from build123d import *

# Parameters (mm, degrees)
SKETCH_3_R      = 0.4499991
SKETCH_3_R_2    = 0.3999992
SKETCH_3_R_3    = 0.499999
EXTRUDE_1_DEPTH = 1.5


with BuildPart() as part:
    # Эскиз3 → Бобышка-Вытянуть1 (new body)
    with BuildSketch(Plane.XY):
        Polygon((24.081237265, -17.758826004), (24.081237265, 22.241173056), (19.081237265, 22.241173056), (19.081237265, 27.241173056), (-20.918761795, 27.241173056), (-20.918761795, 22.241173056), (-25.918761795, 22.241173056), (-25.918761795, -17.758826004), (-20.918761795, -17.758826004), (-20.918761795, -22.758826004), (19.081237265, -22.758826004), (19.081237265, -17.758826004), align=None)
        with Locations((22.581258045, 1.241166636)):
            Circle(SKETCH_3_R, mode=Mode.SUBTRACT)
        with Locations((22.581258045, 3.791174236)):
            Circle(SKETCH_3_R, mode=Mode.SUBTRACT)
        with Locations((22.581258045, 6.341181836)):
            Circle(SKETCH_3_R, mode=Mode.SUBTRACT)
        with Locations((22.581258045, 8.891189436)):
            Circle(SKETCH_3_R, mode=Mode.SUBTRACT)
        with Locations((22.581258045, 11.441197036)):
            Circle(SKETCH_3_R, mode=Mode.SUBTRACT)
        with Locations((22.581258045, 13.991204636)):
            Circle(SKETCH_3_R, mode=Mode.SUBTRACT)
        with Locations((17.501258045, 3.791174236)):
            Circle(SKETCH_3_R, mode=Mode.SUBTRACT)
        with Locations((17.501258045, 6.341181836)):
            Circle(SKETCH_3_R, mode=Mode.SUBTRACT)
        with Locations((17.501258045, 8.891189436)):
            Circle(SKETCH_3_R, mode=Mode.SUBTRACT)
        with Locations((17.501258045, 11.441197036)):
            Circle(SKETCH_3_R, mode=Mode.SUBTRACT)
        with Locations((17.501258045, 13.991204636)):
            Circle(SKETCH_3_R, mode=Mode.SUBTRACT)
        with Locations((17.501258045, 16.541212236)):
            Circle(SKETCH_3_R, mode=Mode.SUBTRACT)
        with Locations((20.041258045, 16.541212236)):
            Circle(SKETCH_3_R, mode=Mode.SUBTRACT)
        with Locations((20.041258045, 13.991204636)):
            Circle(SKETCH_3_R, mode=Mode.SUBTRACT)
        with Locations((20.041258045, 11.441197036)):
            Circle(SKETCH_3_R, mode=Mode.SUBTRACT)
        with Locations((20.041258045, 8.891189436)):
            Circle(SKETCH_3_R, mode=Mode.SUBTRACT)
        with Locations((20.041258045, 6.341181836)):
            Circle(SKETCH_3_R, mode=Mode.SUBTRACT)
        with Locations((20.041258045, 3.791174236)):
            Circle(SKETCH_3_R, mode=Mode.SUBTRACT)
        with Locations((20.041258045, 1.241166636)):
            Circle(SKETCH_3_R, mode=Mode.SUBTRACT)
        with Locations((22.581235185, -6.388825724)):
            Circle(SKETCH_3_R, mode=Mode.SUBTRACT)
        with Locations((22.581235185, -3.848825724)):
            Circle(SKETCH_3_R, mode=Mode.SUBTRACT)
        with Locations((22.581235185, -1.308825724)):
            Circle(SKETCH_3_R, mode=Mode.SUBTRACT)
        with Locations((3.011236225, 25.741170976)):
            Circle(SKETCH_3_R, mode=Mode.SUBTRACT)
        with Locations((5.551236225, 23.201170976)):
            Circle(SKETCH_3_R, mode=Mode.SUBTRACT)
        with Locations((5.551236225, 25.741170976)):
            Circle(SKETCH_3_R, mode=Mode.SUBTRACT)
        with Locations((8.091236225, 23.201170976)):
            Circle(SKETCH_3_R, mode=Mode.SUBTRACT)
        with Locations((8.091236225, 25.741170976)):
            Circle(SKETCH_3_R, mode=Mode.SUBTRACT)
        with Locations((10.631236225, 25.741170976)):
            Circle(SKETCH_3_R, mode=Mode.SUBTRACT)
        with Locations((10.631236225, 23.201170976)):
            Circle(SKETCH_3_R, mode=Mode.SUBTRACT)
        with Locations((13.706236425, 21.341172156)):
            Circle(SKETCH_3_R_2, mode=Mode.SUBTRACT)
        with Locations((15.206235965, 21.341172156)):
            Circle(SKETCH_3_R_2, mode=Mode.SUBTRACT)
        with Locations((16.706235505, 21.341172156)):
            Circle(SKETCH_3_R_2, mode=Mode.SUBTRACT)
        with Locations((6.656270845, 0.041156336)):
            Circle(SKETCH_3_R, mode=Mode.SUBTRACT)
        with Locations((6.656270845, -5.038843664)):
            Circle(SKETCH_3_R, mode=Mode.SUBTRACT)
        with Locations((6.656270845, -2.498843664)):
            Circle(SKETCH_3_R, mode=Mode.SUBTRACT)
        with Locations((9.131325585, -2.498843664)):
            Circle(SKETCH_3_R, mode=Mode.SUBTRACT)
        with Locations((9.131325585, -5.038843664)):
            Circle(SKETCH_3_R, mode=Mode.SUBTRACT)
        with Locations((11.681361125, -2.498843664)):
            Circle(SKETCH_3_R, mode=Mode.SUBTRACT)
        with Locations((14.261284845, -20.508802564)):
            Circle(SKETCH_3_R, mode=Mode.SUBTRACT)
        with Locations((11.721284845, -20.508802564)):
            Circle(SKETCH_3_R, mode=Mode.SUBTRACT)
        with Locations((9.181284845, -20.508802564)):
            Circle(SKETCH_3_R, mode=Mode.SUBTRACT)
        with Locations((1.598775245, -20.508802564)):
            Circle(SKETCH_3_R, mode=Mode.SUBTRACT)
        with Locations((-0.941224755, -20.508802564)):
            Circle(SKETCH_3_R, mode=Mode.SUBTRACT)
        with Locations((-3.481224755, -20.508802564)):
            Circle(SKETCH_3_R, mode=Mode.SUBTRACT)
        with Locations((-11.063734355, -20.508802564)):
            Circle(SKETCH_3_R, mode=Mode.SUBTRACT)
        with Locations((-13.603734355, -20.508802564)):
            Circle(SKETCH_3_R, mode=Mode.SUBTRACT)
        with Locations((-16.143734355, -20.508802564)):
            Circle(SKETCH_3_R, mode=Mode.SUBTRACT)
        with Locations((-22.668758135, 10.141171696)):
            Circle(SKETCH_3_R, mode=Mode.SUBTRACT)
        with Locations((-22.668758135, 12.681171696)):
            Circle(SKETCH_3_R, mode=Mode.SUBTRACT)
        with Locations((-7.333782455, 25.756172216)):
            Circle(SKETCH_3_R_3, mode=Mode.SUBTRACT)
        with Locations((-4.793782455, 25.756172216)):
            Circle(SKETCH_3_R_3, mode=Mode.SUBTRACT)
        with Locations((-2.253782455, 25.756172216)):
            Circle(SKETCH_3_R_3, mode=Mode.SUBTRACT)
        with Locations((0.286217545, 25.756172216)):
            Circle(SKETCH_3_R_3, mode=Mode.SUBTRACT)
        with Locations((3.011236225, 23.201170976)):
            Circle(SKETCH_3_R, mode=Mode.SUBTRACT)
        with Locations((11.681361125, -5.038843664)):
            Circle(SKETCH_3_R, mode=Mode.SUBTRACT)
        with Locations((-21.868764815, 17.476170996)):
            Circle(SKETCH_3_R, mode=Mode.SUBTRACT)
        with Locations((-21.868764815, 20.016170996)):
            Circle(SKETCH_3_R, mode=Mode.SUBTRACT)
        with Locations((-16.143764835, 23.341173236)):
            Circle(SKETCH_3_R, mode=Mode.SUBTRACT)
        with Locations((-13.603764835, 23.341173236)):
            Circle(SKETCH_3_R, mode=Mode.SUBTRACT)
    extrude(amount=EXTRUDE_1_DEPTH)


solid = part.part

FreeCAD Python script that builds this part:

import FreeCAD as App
import Part
import Sketcher
Q = App.Units.Quantity


def add_polygon(sketch, points):
    """Adds a closed chain of lines whose ends are joined by coincident constraints."""
    first, n = sketch.GeometryCount, len(points)
    for a, b in zip(points, points[1:] + points[:1]):
        sketch.addGeometry(Part.LineSegment(App.Vector(*a, 0), App.Vector(*b, 0)), False)
    for i in range(n):
        sketch.addConstraint(Sketcher.Constraint("Coincident", first + i, 2, first + (i + 1) % n, 1))

doc = App.newDocument("Part")
body = doc.addObject("PartDesign::Body", "Body")

# Sketch on XY plane
sketch1 = doc.addObject("Sketcher::SketchObject", "Sketch")
body.addObject(sketch1)
sketch1.AttachmentSupport = (doc.XY_Plane, [""])
sketch1.MapMode = "FlatFace"
add_polygon(sketch1, [(24.08, -17.76), (24.08, 22.24), (19.08, 22.24), (19.08, 27.24), (-20.92, 27.24), (-20.92, 22.24), (-25.92, 22.24), (-25.92, -17.76), (-20.92, -17.76), (-20.92, -22.76), (19.08, -22.76), (19.08, -17.76)])  # lines 0-11
sketch1.addGeometry(Part.Circle(App.Vector(-16.14, -20.51, 0), App.Vector(0, 0, 1), 0.45), False)  # 12
sketch1.addGeometry(Part.Circle(App.Vector(-13.6, -20.51, 0), App.Vector(0, 0, 1), 0.45), False)  # 13
sketch1.addGeometry(Part.Circle(App.Vector(-11.06, -20.51, 0), App.Vector(0, 0, 1), 0.45), False)  # 14
sketch1.addGeometry(Part.Circle(App.Vector(-3.48, -20.51, 0), App.Vector(0, 0, 1), 0.45), False)  # 15
sketch1.addGeometry(Part.Circle(App.Vector(-0.94, -20.51, 0), App.Vector(0, 0, 1), 0.45), False)  # 16
sketch1.addGeometry(Part.Circle(App.Vector(1.6, -20.51, 0), App.Vector(0, 0, 1), 0.45), False)  # 17
sketch1.addGeometry(Part.Circle(App.Vector(9.18, -20.51, 0), App.Vector(0, 0, 1), 0.45), False)  # 18
sketch1.addGeometry(Part.Circle(App.Vector(11.72, -20.51, 0), App.Vector(0, 0, 1), 0.45), False)  # 19
sketch1.addGeometry(Part.Circle(App.Vector(14.26, -20.51, 0), App.Vector(0, 0, 1), 0.45), False)  # 20
sketch1.addGeometry(Part.Circle(App.Vector(6.66, -5.04, 0), App.Vector(0, 0, 1), 0.45), False)  # 21
sketch1.addGeometry(Part.Circle(App.Vector(9.13, -5.04, 0), App.Vector(0, 0, 1), 0.45), False)  # 22
sketch1.addGeometry(Part.Circle(App.Vector(6.66, -2.5, 0), App.Vector(0, 0, 1), 0.45), False)  # 23
sketch1.addGeometry(Part.Circle(App.Vector(9.13, -2.5, 0), App.Vector(0, 0, 1), 0.45), False)  # 24
sketch1.addGeometry(Part.Circle(App.Vector(6.66, 0.04, 0), App.Vector(0, 0, 1), 0.45), False)  # 25
sketch1.addGeometry(Part.Circle(App.Vector(11.68, -5.04, 0), App.Vector(0, 0, 1), 0.45), False)  # 26
sketch1.addGeometry(Part.Circle(App.Vector(22.58, -6.39, 0), App.Vector(0, 0, 1), 0.45), False)  # 27
sketch1.addGeometry(Part.Circle(App.Vector(22.58, -3.85, 0), App.Vector(0, 0, 1), 0.45), False)  # 28
sketch1.addGeometry(Part.Circle(App.Vector(11.68, -2.5, 0), App.Vector(0, 0, 1), 0.45), False)  # 29
sketch1.addGeometry(Part.Circle(App.Vector(22.58, -1.31, 0), App.Vector(0, 0, 1), 0.45), False)  # 30
sketch1.addGeometry(Part.Circle(App.Vector(20.04, 1.24, 0), App.Vector(0, 0, 1), 0.45), False)  # 31
sketch1.addGeometry(Part.Circle(App.Vector(22.58, 1.24, 0), App.Vector(0, 0, 1), 0.45), False)  # 32
sketch1.addGeometry(Part.Circle(App.Vector(-22.67, 10.14, 0), App.Vector(0, 0, 1), 0.45), False)  # 33
sketch1.addGeometry(Part.Circle(App.Vector(-22.67, 12.68, 0), App.Vector(0, 0, 1), 0.45), False)  # 34
sketch1.addGeometry(Part.Circle(App.Vector(-21.87, 17.48, 0), App.Vector(0, 0, 1), 0.45), False)  # 35
sketch1.addGeometry(Part.Circle(App.Vector(-21.87, 20.02, 0), App.Vector(0, 0, 1), 0.45), False)  # 36
sketch1.addGeometry(Part.Circle(App.Vector(-16.14, 23.34, 0), App.Vector(0, 0, 1), 0.45), False)  # 37
sketch1.addGeometry(Part.Circle(App.Vector(-13.6, 23.34, 0), App.Vector(0, 0, 1), 0.45), False)  # 38
sketch1.addGeometry(Part.Circle(App.Vector(-7.33, 25.76, 0), App.Vector(0, 0, 1), 0.5), False)  # 39
sketch1.addGeometry(Part.Circle(App.Vector(-4.79, 25.76, 0), App.Vector(0, 0, 1), 0.5), False)  # 40
sketch1.addGeometry(Part.Circle(App.Vector(-2.25, 25.76, 0), App.Vector(0, 0, 1), 0.5), False)  # 41
sketch1.addGeometry(Part.Circle(App.Vector(17.5, 3.79, 0), App.Vector(0, 0, 1), 0.45), False)  # 42
sketch1.addGeometry(Part.Circle(App.Vector(20.04, 3.79, 0), App.Vector(0, 0, 1), 0.45), False)  # 43
sketch1.addGeometry(Part.Circle(App.Vector(22.58, 3.79, 0), App.Vector(0, 0, 1), 0.45), False)  # 44
sketch1.addGeometry(Part.Circle(App.Vector(17.5, 6.34, 0), App.Vector(0, 0, 1), 0.45), False)  # 45
sketch1.addGeometry(Part.Circle(App.Vector(20.04, 6.34, 0), App.Vector(0, 0, 1), 0.45), False)  # 46
sketch1.addGeometry(Part.Circle(App.Vector(22.58, 6.34, 0), App.Vector(0, 0, 1), 0.45), False)  # 47
sketch1.addGeometry(Part.Circle(App.Vector(17.5, 8.89, 0), App.Vector(0, 0, 1), 0.45), False)  # 48
sketch1.addGeometry(Part.Circle(App.Vector(20.04, 8.89, 0), App.Vector(0, 0, 1), 0.45), False)  # 49
sketch1.addGeometry(Part.Circle(App.Vector(17.5, 11.44, 0), App.Vector(0, 0, 1), 0.45), False)  # 50
sketch1.addGeometry(Part.Circle(App.Vector(20.04, 11.44, 0), App.Vector(0, 0, 1), 0.45), False)  # 51
sketch1.addGeometry(Part.Circle(App.Vector(22.58, 8.89, 0), App.Vector(0, 0, 1), 0.45), False)  # 52
sketch1.addGeometry(Part.Circle(App.Vector(22.58, 11.44, 0), App.Vector(0, 0, 1), 0.45), False)  # 53
sketch1.addGeometry(Part.Circle(App.Vector(17.5, 13.99, 0), App.Vector(0, 0, 1), 0.45), False)  # 54
sketch1.addGeometry(Part.Circle(App.Vector(20.04, 13.99, 0), App.Vector(0, 0, 1), 0.45), False)  # 55
sketch1.addGeometry(Part.Circle(App.Vector(22.58, 13.99, 0), App.Vector(0, 0, 1), 0.45), False)  # 56
sketch1.addGeometry(Part.Circle(App.Vector(3.01, 23.2, 0), App.Vector(0, 0, 1), 0.45), False)  # 57
sketch1.addGeometry(Part.Circle(App.Vector(5.55, 23.2, 0), App.Vector(0, 0, 1), 0.45), False)  # 58
sketch1.addGeometry(Part.Circle(App.Vector(0.29, 25.76, 0), App.Vector(0, 0, 1), 0.5), False)  # 59
sketch1.addGeometry(Part.Circle(App.Vector(3.01, 25.74, 0), App.Vector(0, 0, 1), 0.45), False)  # 60
sketch1.addGeometry(Part.Circle(App.Vector(5.55, 25.74, 0), App.Vector(0, 0, 1), 0.45), False)  # 61
sketch1.addGeometry(Part.Circle(App.Vector(8.09, 23.2, 0), App.Vector(0, 0, 1), 0.45), False)  # 62
sketch1.addGeometry(Part.Circle(App.Vector(10.63, 23.2, 0), App.Vector(0, 0, 1), 0.45), False)  # 63
sketch1.addGeometry(Part.Circle(App.Vector(8.09, 25.74, 0), App.Vector(0, 0, 1), 0.45), False)  # 64
sketch1.addGeometry(Part.Circle(App.Vector(10.63, 25.74, 0), App.Vector(0, 0, 1), 0.45), False)  # 65
sketch1.addGeometry(Part.Circle(App.Vector(17.5, 16.54, 0), App.Vector(0, 0, 1), 0.45), False)  # 66
sketch1.addGeometry(Part.Circle(App.Vector(20.04, 16.54, 0), App.Vector(0, 0, 1), 0.45), False)  # 67
sketch1.addGeometry(Part.Circle(App.Vector(13.71, 21.34, 0), App.Vector(0, 0, 1), 0.4), False)  # 68
sketch1.addGeometry(Part.Circle(App.Vector(15.21, 21.34, 0), App.Vector(0, 0, 1), 0.4), False)  # 69
sketch1.addGeometry(Part.Circle(App.Vector(16.71, 21.34, 0), App.Vector(0, 0, 1), 0.4), False)  # 70
sketch1.addConstraint([
    Sketcher.Constraint("Vertical", 0),
    Sketcher.Constraint("Horizontal", 1),
    Sketcher.Constraint("Vertical", 2),
    Sketcher.Constraint("Horizontal", 3),
    Sketcher.Constraint("Vertical", 4),
    Sketcher.Constraint("Horizontal", 5),
    Sketcher.Constraint("Vertical", 6),
    Sketcher.Constraint("Horizontal", 7),
    Sketcher.Constraint("Vertical", 8),
    Sketcher.Constraint("Horizontal", 9),
    Sketcher.Constraint("Vertical", 10),
    Sketcher.Constraint("Horizontal", 11),
    Sketcher.Constraint("Equal", 12, 13),
    Sketcher.Constraint("Equal", 13, 14),
    Sketcher.Constraint("Equal", 14, 15),
    Sketcher.Constraint("Equal", 15, 16),
    Sketcher.Constraint("Equal", 16, 17),
    Sketcher.Constraint("Equal", 17, 18),
    Sketcher.Constraint("Equal", 18, 19),
    Sketcher.Constraint("Equal", 19, 20),
    Sketcher.Constraint("Equal", 20, 21),
    Sketcher.Constraint("Equal", 21, 22),
    Sketcher.Constraint("Equal", 22, 23),
    Sketcher.Constraint("Equal", 23, 24),
    Sketcher.Constraint("Equal", 24, 25),
    Sketcher.Constraint("Equal", 25, 26),
    Sketcher.Constraint("Equal", 26, 27),
    Sketcher.Constraint("Equal", 27, 28),
    Sketcher.Constraint("Equal", 28, 29),
    Sketcher.Constraint("Equal", 29, 30),
    Sketcher.Constraint("Equal", 30, 31),
    Sketcher.Constraint("Equal", 31, 32),
    Sketcher.Constraint("Equal", 32, 33),
    Sketcher.Constraint("Equal", 33, 34),
    Sketcher.Constraint("Equal", 34, 35),
    Sketcher.Constraint("Equal", 35, 36),
    Sketcher.Constraint("Equal", 36, 37),
    Sketcher.Constraint("Equal", 37, 38),
    Sketcher.Constraint("Equal", 39, 40),
    Sketcher.Constraint("Equal", 40, 41),
    Sketcher.Constraint("Equal", 38, 42),
    Sketcher.Constraint("Equal", 42, 43),
    Sketcher.Constraint("Equal", 43, 44),
    Sketcher.Constraint("Equal", 44, 45),
    Sketcher.Constraint("Equal", 45, 46),
    Sketcher.Constraint("Equal", 46, 47),
    Sketcher.Constraint("Equal", 47, 48),
    Sketcher.Constraint("Equal", 48, 49),
    Sketcher.Constraint("Equal", 49, 50),
    Sketcher.Constraint("Equal", 50, 51),
    Sketcher.Constraint("Equal", 51, 52),
    Sketcher.Constraint("Equal", 52, 53),
    Sketcher.Constraint("Equal", 53, 54),
    Sketcher.Constraint("Equal", 54, 55),
    Sketcher.Constraint("Equal", 55, 56),
    Sketcher.Constraint("Equal", 56, 57),
    Sketcher.Constraint("Equal", 57, 58),
    Sketcher.Constraint("Equal", 41, 59),
    Sketcher.Constraint("Equal", 58, 60),
    Sketcher.Constraint("Equal", 60, 61),
    Sketcher.Constraint("Equal", 61, 62),
    Sketcher.Constraint("Equal", 62, 63),
    Sketcher.Constraint("Equal", 63, 64),
    Sketcher.Constraint("Equal", 64, 65),
    Sketcher.Constraint("Equal", 65, 66),
    Sketcher.Constraint("Equal", 66, 67),
    Sketcher.Constraint("Equal", 68, 69),
    Sketcher.Constraint("Equal", 69, 70),
    Sketcher.Constraint("Horizontal", 12, 3, 13, 3),
    Sketcher.Constraint("Horizontal", 13, 3, 14, 3),
    Sketcher.Constraint("Horizontal", 14, 3, 15, 3),
    Sketcher.Constraint("Horizontal", 15, 3, 16, 3),
    Sketcher.Constraint("Horizontal", 16, 3, 17, 3),
    Sketcher.Constraint("Horizontal", 17, 3, 18, 3),
    Sketcher.Constraint("Horizontal", 18, 3, 19, 3),
    Sketcher.Constraint("Horizontal", 19, 3, 20, 3),
    Sketcher.Constraint("Horizontal", 21, 3, 22, 3),
    Sketcher.Constraint("Horizontal", 23, 3, 24, 3),
    Sketcher.Constraint("Horizontal", 22, 3, 26, 3),
    Sketcher.Constraint("Horizontal", 24, 3, 29, 3),
    Sketcher.Constraint("Horizontal", 31, 3, 32, 3),
    Sketcher.Constraint("Horizontal", 37, 3, 38, 3),
    Sketcher.Constraint("Horizontal", 39, 3, 40, 3),
    Sketcher.Constraint("Horizontal", 40, 3, 41, 3),
    Sketcher.Constraint("Horizontal", 42, 3, 43, 3),
    Sketcher.Constraint("Horizontal", 43, 3, 44, 3),
    Sketcher.Constraint("Horizontal", 45, 3, 46, 3),
    Sketcher.Constraint("Horizontal", 46, 3, 47, 3),
    Sketcher.Constraint("Horizontal", 48, 3, 49, 3),
    Sketcher.Constraint("Horizontal", 50, 3, 51, 3),
    Sketcher.Constraint("Horizontal", 49, 3, 52, 3),
    Sketcher.Constraint("Horizontal", 51, 3, 53, 3),
    Sketcher.Constraint("Horizontal", 54, 3, 55, 3),
    Sketcher.Constraint("Horizontal", 55, 3, 56, 3),
    Sketcher.Constraint("Horizontal", 57, 3, 58, 3),
    Sketcher.Constraint("Horizontal", 41, 3, 59, 3),
    Sketcher.Constraint("Horizontal", 60, 3, 61, 3),
    Sketcher.Constraint("Horizontal", 58, 3, 62, 3),
    Sketcher.Constraint("Horizontal", 62, 3, 63, 3),
    Sketcher.Constraint("Horizontal", 61, 3, 64, 3),
    Sketcher.Constraint("Horizontal", 64, 3, 65, 3),
    Sketcher.Constraint("Horizontal", 66, 3, 67, 3),
    Sketcher.Constraint("Horizontal", 68, 3, 69, 3),
    Sketcher.Constraint("Horizontal", 69, 3, 70, 3),
    Sketcher.Constraint("Horizontal", 1, 2, 4, 2),
    Sketcher.Constraint("Horizontal", 7, 2, 10, 2),
    Sketcher.Constraint("Vertical", 21, 3, 23, 3),
    Sketcher.Constraint("Vertical", 22, 3, 24, 3),
    Sketcher.Constraint("Vertical", 23, 3, 25, 3),
    Sketcher.Constraint("Vertical", 27, 3, 28, 3),
    Sketcher.Constraint("Vertical", 26, 3, 29, 3),
    Sketcher.Constraint("Vertical", 28, 3, 30, 3),
    Sketcher.Constraint("Vertical", 33, 3, 34, 3),
    Sketcher.Constraint("Vertical", 35, 3, 36, 3),
    Sketcher.Constraint("Vertical", 31, 3, 43, 3),
    Sketcher.Constraint("Vertical", 32, 3, 44, 3),
    Sketcher.Constraint("Vertical", 42, 3, 45, 3),
    Sketcher.Constraint("Vertical", 43, 3, 46, 3),
    Sketcher.Constraint("Vertical", 44, 3, 47, 3),
    Sketcher.Constraint("Vertical", 45, 3, 48, 3),
    Sketcher.Constraint("Vertical", 46, 3, 49, 3),
    Sketcher.Constraint("Vertical", 48, 3, 50, 3),
    Sketcher.Constraint("Vertical", 49, 3, 51, 3),
    Sketcher.Constraint("Vertical", 47, 3, 52, 3),
    Sketcher.Constraint("Vertical", 52, 3, 53, 3),
    Sketcher.Constraint("Vertical", 50, 3, 54, 3),
    Sketcher.Constraint("Vertical", 51, 3, 55, 3),
    Sketcher.Constraint("Vertical", 53, 3, 56, 3),
    Sketcher.Constraint("Vertical", 57, 3, 60, 3),
    Sketcher.Constraint("Vertical", 58, 3, 61, 3),
    Sketcher.Constraint("Vertical", 62, 3, 64, 3),
    Sketcher.Constraint("Vertical", 63, 3, 65, 3),
    Sketcher.Constraint("Vertical", 54, 3, 66, 3),
    Sketcher.Constraint("Vertical", 55, 3, 67, 3),
    Sketcher.Constraint("Vertical", 4, 2, 7, 2),
    Sketcher.Constraint("Vertical", 2, 2, 9, 2),
    Sketcher.Constraint("Equal", 1, 5),
    Sketcher.Constraint("Equal", 9, 0),
    Sketcher.Constraint("Equal", 11, 2),
    Sketcher.Constraint("Equal", 4, 8),
    Sketcher.Constraint("Diameter", 39, Q("0.999998 mm")),
    Sketcher.Constraint("Diameter", 12, Q("0.899998 mm")),
    Sketcher.Constraint("Diameter", 68, Q("0.799998 mm")),
    Sketcher.Constraint("DistanceX", 1, 2, 1, 1, Q("5 mm")),
    Sketcher.Constraint("DistanceX", 3, 2, 3, 1, Q("39.999999 mm")),
    Sketcher.Constraint("DistanceX", -1, 1, 21, 3, Q("6.656271 mm")),
    Sketcher.Constraint("DistanceX", -1, 1, 26, 3, Q("11.681361 mm")),
    Sketcher.Constraint("DistanceX", -1, 1, 31, 3, Q("20.041258 mm")),
    Sketcher.Constraint("DistanceX", -1, 1, 32, 3, Q("22.581258 mm")),
    Sketcher.Constraint("DistanceX", 33, 3, -1, 1, Q("22.668758 mm")),
    Sketcher.Constraint("DistanceY", -1, 1, 33, 3, Q("10.141172 mm")),
    Sketcher.Constraint("DistanceY", -1, 1, 34, 3, Q("12.681172 mm")),
    Sketcher.Constraint("DistanceY", -1, 1, 35, 3, Q("17.476171 mm")),
    Sketcher.Constraint("DistanceY", -1, 1, 36, 3, Q("20.016171 mm")),
    Sketcher.Constraint("DistanceX", -1, 1, 42, 3, Q("17.501258 mm")),
    Sketcher.Constraint("DistanceY", -1, 1, 45, 3, Q("6.341182 mm")),
    Sketcher.Constraint("DistanceY", -1, 1, 48, 3, Q("8.891189 mm")),
    Sketcher.Constraint("DistanceY", -1, 1, 57, 3, Q("23.201171 mm")),
    Sketcher.Constraint("DistanceY", -1, 1, 60, 3, Q("25.741171 mm")),
    Sketcher.Constraint("DistanceX", 3, 2, -1, 1, Q("20.918762 mm")),
    Sketcher.Constraint("DistanceX", 12, 3, -1, 1, Q("16.143734 mm")),
    Sketcher.Constraint("DistanceY", 12, 3, -1, 1, Q("20.508803 mm")),
    Sketcher.Constraint("DistanceX", 13, 3, -1, 1, Q("13.603734 mm")),
    Sketcher.Constraint("DistanceX", 14, 3, -1, 1, Q("11.063734 mm")),
    Sketcher.Constraint("DistanceX", 15, 3, -1, 1, Q("3.481225 mm")),
    Sketcher.Constraint("DistanceX", 16, 3, -1, 1, Q("0.941225 mm")),
    Sketcher.Constraint("DistanceX", -1, 1, 17, 3, Q("1.598775 mm")),
    Sketcher.Constraint("DistanceX", -1, 1, 18, 3, Q("9.181285 mm")),
    Sketcher.Constraint("DistanceX", -1, 1, 19, 3, Q("11.721285 mm")),
    Sketcher.Constraint("DistanceX", -1, 1, 20, 3, Q("14.261285 mm")),
    Sketcher.Constraint("DistanceY", 21, 3, -1, 1, Q("5.038844 mm")),
    Sketcher.Constraint("DistanceX", -1, 1, 22, 3, Q("9.131326 mm")),
    Sketcher.Constraint("DistanceY", 23, 3, -1, 1, Q("2.498844 mm")),
    Sketcher.Constraint("DistanceY", -1, 1, 25, 3, Q("0.041156 mm")),
    Sketcher.Constraint("DistanceX", -1, 1, 27, 3, Q("22.581235 mm")),
    Sketcher.Constraint("DistanceY", 27, 3, -1, 1, Q("6.388826 mm")),
    Sketcher.Constraint("DistanceY", 28, 3, -1, 1, Q("3.848826 mm")),
    Sketcher.Constraint("DistanceY", 30, 3, -1, 1, Q("1.308826 mm")),
    Sketcher.Constraint("DistanceY", -1, 1, 31, 3, Q("1.241167 mm")),
    Sketcher.Constraint("DistanceX", 35, 3, -1, 1, Q("21.868765 mm")),
    Sketcher.Constraint("DistanceX", 37, 3, -1, 1, Q("16.143765 mm")),
    Sketcher.Constraint("DistanceY", -1, 1, 37, 3, Q("23.341173 mm")),
    Sketcher.Constraint("DistanceX", 38, 3, -1, 1, Q("13.603765 mm")),
    Sketcher.Constraint("DistanceX", 39, 3, -1, 1, Q("7.333782 mm")),
    Sketcher.Constraint("DistanceY", -1, 1, 39, 3, Q("25.756172 mm")),
    Sketcher.Constraint("DistanceX", 40, 3, -1, 1, Q("4.793782 mm")),
    Sketcher.Constraint("DistanceX", 41, 3, -1, 1, Q("2.253782 mm")),
    Sketcher.Constraint("DistanceY", -1, 1, 42, 3, Q("3.791174 mm")),
    Sketcher.Constraint("DistanceY", -1, 1, 50, 3, Q("11.441197 mm")),
    Sketcher.Constraint("DistanceY", -1, 1, 54, 3, Q("13.991205 mm")),
    Sketcher.Constraint("DistanceX", -1, 1, 57, 3, Q("3.011236 mm")),
    Sketcher.Constraint("DistanceX", -1, 1, 58, 3, Q("5.551236 mm")),
    Sketcher.Constraint("DistanceX", -1, 1, 59, 3, Q("0.286218 mm")),
    Sketcher.Constraint("DistanceX", -1, 1, 62, 3, Q("8.091236 mm")),
    Sketcher.Constraint("DistanceX", -1, 1, 63, 3, Q("10.631236 mm")),
    Sketcher.Constraint("DistanceY", -1, 1, 66, 3, Q("16.541212 mm")),
    Sketcher.Constraint("DistanceX", -1, 1, 68, 3, Q("13.706236 mm")),
    Sketcher.Constraint("DistanceY", -1, 1, 68, 3, Q("21.341172 mm")),
    Sketcher.Constraint("DistanceX", -1, 1, 69, 3, Q("15.206236 mm")),
    Sketcher.Constraint("DistanceX", -1, 1, 70, 3, Q("16.706236 mm")),
    Sketcher.Constraint("DistanceY", -1, 1, 0, 2, Q("22.241173 mm")),
])
pad1 = doc.addObject("PartDesign::Pad", "Pad")
body.addObject(pad1)
pad1.Profile = sketch1
pad1.Length = 1.5

doc.recompute()
